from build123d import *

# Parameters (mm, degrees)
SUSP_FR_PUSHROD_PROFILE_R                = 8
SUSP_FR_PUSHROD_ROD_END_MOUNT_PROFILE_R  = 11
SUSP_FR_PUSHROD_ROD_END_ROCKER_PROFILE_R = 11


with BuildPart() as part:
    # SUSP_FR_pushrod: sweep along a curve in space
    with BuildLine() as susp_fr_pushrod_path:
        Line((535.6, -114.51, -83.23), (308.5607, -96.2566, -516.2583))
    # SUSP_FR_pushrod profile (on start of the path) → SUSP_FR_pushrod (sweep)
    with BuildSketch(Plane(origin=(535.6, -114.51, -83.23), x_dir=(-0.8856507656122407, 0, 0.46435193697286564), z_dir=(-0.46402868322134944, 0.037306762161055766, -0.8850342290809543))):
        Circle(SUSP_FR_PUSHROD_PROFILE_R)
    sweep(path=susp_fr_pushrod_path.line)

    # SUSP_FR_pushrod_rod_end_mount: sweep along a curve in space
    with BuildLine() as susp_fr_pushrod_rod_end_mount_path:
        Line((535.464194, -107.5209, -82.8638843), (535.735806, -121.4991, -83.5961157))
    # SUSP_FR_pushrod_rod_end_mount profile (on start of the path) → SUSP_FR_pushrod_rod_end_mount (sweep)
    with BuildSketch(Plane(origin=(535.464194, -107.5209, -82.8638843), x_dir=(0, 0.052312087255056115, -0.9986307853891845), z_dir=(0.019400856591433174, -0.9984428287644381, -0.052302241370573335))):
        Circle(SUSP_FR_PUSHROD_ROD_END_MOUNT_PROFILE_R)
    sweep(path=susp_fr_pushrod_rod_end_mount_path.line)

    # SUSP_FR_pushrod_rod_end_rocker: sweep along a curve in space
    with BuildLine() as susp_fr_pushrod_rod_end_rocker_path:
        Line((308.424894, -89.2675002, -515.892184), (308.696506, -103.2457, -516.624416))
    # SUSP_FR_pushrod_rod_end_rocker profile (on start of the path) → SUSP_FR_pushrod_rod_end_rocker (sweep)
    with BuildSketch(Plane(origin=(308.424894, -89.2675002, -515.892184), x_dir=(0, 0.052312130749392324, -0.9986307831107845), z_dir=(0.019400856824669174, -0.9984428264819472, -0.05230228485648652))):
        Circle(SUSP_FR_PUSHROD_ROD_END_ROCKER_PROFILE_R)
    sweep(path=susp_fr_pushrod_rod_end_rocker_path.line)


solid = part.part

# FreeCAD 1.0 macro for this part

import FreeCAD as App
import Part
import Sketcher

V = App.Vector

doc = App.newDocument("Part")
body = doc.addObject("PartDesign::Body", "Body")

sketch1 = body.newObject("Sketcher::SketchObject", "Sketch")
sketch1.Placement = App.Placement(V(535.6, -114.51, -83.23), App.Rotation(V(-0.885650766, 0, 0.464351937), V(0.017323467, 0.999303861, 0.033040762), V(-0.464028683, 0.037306762, -0.885034229), "ZXY"))
sketch1.addGeometry(Part.Circle(V(0, 0, 0), V(0, 0, 1), 8), False)
sketch1.addConstraint(Sketcher.Constraint("Coincident", 0, 3, -1, 1))
sketch1.addConstraint(Sketcher.Constraint("Diameter", 0, 16.0))

sketch2 = body.newObject("Sketcher::SketchObject", "Sketch001")
sketch2.Placement = App.Placement(V(454.341112, 0, -238.213733), App.Rotation(V(-0.464351937, 0, -0.885650766), V(0, 1.000000001, 0), V(0.885650766, 0, -0.464351937), "ZXY"))
sketch2.addGeometry(Part.LineSegment(V(-175, -115, 0), V(314, -96, 0)), False)
sketch2.addConstraint(Sketcher.Constraint("DistanceY", 0, 1, -1, 1, 114.51))
sketch2.addConstraint(Sketcher.Constraint("DistanceX", -1, 1, 0, 2, 313.9438))
sketch2.addConstraint(Sketcher.Constraint("DistanceY", 0, 2, -1, 1, 96.2566))
sketch2.addConstraint(Sketcher.Constraint("Distance", 0, 489.278591))
doc.recompute()

additivepipe = body.newObject("PartDesign::AdditivePipe", "AdditivePipe")
additivepipe.Profile = sketch1
additivepipe.Spine = (sketch2, ["Edge1"])

sketch3 = body.newObject("Sketcher::SketchObject", "Sketch002")
sketch3.Placement = App.Placement(V(535.464194, -107.5209, -82.863884), App.Rotation(V(0, 0.052312087, -0.998630785), V(0.999811785, 0.019374293, 0.001014899), V(0.019400857, -0.998442829, -0.052302241), "ZXY"))
sketch3.addGeometry(Part.Circle(V(0, 0, 0), V(0, 0, 1), 11), False)
sketch3.addConstraint(Sketcher.Constraint("Coincident", 0, 3, -1, 1))
sketch3.addConstraint(Sketcher.Constraint("Diameter", 0, 22.0))

sketch4 = body.newObject("Sketcher::SketchObject", "Sketch003")
sketch4.Placement = App.Placement(V(0, 4.034611, -77.020181), App.Rotation(V(0, -0.998630785, -0.052312087), V(0.999999999, 0, 0), V(0, -0.052312087, 0.998630785), "ZXY"))
sketch4.addGeometry(Part.LineSegment(V(111.708463, 535.464193, 0), V(125.705829, 535.735805, 0)), False)
sketch4.addConstraint(Sketcher.Constraint("Distance", 0, 14.0))
sketch4.addConstraint(Sketcher.Constraint("DistanceX", -1, 1, 0, 2, 125.705829))
sketch4.addConstraint(Sketcher.Constraint("DistanceX", -1, 1, 0, 1, 111.708463))
sketch4.addConstraint(Sketcher.Constraint("DistanceY", -1, 1, 0, 1, 535.464193))
doc.recompute()

additivepipe2 = body.newObject("PartDesign::AdditivePipe", "AdditivePipe001")
additivepipe2.Profile = sketch3
additivepipe2.Spine = (sketch4, ["Edge1"])

sketch5 = body.newObject("Sketcher::SketchObject", "Sketch004")
sketch5.Placement = App.Placement(V(308.424894, -89.2675, -515.892184), App.Rotation(V(0, 0.052312131, -0.998630783), V(0.999811785, 0.019374293, 0.0010149), V(0.019400857, -0.998442826, -0.052302285), "ZXY"))
sketch5.addGeometry(Part.Circle(V(0, 0, 0), V(0, 0, 1), 11), False)
sketch5.addConstraint(Sketcher.Constraint("Coincident", 0, 3, -1, 1))
sketch5.addConstraint(Sketcher.Constraint("Diameter", 0, 22.0))

sketch6 = body.newObject("Sketcher::SketchObject", "Sketch005")
sketch6.Placement = App.Placement(V(0, 26.706182, -509.817035), App.Rotation(V(0, -0.998630783, -0.052312131), V(1, 0, 0), V(0, -0.052312131, 0.998630783), "ZXY"))
sketch6.addGeometry(Part.LineSegment(V(116.132693, 308.424894, 0), V(130.130058, 308.696506, 0)), False)
sketch6.addConstraint(Sketcher.Constraint("Distance", 0, 14.0))
sketch6.addConstraint(Sketcher.Constraint("DistanceX", -1, 1, 0, 2, 130.130058))
sketch6.addConstraint(Sketcher.Constraint("DistanceX", -1, 1, 0, 1, 116.132693))
sketch6.addConstraint(Sketcher.Constraint("DistanceY", -1, 1, 0, 1, 308.424894))
doc.recompute()

additivepipe3 = body.newObject("PartDesign::AdditivePipe", "AdditivePipe002")
additivepipe3.Profile = sketch5
additivepipe3.Spine = (sketch6, ["Edge1"])

doc.recompute()
